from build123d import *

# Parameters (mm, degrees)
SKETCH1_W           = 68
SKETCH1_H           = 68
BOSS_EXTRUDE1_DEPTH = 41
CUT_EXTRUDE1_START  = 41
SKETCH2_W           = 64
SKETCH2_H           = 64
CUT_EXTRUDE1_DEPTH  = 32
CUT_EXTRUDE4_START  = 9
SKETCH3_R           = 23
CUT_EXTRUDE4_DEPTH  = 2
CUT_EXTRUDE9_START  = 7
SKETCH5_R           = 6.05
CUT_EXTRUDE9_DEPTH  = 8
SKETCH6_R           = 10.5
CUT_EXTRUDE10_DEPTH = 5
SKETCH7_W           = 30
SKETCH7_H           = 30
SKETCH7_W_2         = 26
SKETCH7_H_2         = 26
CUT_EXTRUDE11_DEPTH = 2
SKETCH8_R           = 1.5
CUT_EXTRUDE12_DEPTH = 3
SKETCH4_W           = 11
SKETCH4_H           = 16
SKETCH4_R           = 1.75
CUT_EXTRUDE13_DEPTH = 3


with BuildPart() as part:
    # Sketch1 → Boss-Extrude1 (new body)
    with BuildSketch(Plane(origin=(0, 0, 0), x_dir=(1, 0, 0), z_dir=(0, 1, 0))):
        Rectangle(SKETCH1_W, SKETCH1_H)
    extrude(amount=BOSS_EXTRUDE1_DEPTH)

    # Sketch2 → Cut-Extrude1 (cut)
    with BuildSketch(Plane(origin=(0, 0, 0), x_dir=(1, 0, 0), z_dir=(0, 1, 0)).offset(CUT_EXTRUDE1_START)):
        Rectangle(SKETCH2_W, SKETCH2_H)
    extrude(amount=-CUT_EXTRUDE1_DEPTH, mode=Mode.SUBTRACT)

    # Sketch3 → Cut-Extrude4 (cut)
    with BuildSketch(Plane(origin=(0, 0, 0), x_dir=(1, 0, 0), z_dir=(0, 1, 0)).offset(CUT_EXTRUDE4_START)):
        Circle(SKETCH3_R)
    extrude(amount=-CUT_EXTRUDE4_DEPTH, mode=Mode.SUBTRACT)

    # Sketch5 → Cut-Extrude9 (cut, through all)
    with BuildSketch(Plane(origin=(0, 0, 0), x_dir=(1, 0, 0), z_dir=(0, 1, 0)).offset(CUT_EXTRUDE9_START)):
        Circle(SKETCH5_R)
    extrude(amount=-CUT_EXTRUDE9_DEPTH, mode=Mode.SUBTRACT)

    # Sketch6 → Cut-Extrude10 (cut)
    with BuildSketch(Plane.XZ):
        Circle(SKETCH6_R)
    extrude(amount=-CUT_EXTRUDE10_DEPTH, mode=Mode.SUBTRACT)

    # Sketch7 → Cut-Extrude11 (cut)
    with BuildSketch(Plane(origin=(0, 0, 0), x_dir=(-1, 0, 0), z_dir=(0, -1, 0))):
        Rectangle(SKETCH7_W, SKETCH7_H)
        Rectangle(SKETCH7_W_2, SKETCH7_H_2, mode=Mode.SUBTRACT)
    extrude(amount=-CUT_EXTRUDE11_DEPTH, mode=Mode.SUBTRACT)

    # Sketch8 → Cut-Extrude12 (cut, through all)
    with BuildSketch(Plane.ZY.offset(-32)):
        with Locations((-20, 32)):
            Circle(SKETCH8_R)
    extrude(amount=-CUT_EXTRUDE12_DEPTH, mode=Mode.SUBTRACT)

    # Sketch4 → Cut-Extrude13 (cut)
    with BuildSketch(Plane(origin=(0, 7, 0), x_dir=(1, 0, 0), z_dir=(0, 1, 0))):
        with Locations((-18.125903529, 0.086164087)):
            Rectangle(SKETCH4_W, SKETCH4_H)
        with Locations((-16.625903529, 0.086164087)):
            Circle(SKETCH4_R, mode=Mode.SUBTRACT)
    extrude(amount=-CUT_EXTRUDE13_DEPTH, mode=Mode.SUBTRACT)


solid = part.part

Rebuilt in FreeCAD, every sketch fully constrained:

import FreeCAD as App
import Part
import Sketcher

doc = App.newDocument("Part")
params = doc.addObject("Spreadsheet::Sheet", "Params")
for row, (alias, value) in enumerate([
    ("sketch1_width", "68 mm"),
    ("pad1_length", "41 mm"),
    ("sketch2_width", "64 mm"),
    ("pocket1_length", "32 mm"),
    ("sketch3_diameter", "46 mm"),
    ("pocket2_length", "2 mm"),
    ("sketch4_diameter", "12.1 mm"),
    ("sketch5_diameter", "21 mm"),
    ("pocket4_length", "5 mm"),
    ("sketch6_width", "30 mm"),
    ("sketch6_width2", "26 mm"),
    ("pocket5_length", "2 mm"),
    ("sketch7_diameter", "3 mm"),
    ("sketch8_diameter", "3.5 mm"),
    ("sketch8_width", "11 mm"),
    ("sketch8_height", "16 mm"),
    ("pocket7_length", "3 mm"),
], start=1):
    params.set(f"A{row}", alias)
    params.set(f"B{row}", "=" + value)
    params.setAlias(f"B{row}", alias)

body = doc.addObject("PartDesign::Body", "Body")

sketch1 = doc.addObject("Sketcher::SketchObject", "Sketch")
body.addObject(sketch1)
sketch1.AttachmentSupport = (doc.XZ_Plane, [""])
sketch1.MapMode = "FlatFace"
sketch1.addGeometry(Part.LineSegment(App.Vector(-34, -34, 0), App.Vector(-34, 34, 0)), False)
sketch1.addGeometry(Part.LineSegment(App.Vector(-34, 34, 0), App.Vector(34, 34, 0)), False)
sketch1.addGeometry(Part.LineSegment(App.Vector(34, 34, 0), App.Vector(34, -34, 0)), False)
sketch1.addGeometry(Part.LineSegment(App.Vector(34, -34, 0), App.Vector(-34, -34, 0)), False)
sketch1.addConstraint(Sketcher.Constraint("Coincident", 0, 2, 1, 1))
sketch1.addConstraint(Sketcher.Constraint("Coincident", 1, 2, 2, 1))
sketch1.addConstraint(Sketcher.Constraint("Coincident", 2, 2, 3, 1))
sketch1.addConstraint(Sketcher.Constraint("Coincident", 3, 2, 0, 1))
sketch1.addConstraint(Sketcher.Constraint("Vertical", 0))
sketch1.addConstraint(Sketcher.Constraint("Horizontal", 1))
sketch1.addConstraint(Sketcher.Constraint("Vertical", 2))
sketch1.addConstraint(Sketcher.Constraint("Horizontal", 3))
sketch1.addConstraint(Sketcher.Constraint("Symmetric", 0, 2, 2, 2, -1, 1))
sketch1.addConstraint(Sketcher.Constraint("Equal", 3, 0))
sketch1.addConstraint(Sketcher.Constraint("DistanceX", 1, 1, 1, 2, 68.0))
sketch1.setExpression("Constraints[10]", "Params.sketch1_width")
pad1 = doc.addObject("PartDesign::Pad", "Pad")
body.addObject(pad1)
pad1.Profile = sketch1
pad1.setExpression("Length", "Params.pad1_length")
pad1.Reversed = True

sketch2 = doc.addObject("Sketcher::SketchObject", "Sketch001")
body.addObject(sketch2)
sketch2.AttachmentSupport = (doc.XZ_Plane, [""])
sketch2.MapMode = "FlatFace"
sketch2.AttachmentOffset = App.Placement(App.Vector(0, 0, -41), App.Rotation())
sketch2.addGeometry(Part.LineSegment(App.Vector(-32, -32, 0), App.Vector(-32, 32, 0)), False)
sketch2.addGeometry(Part.LineSegment(App.Vector(-32, 32, 0), App.Vector(32, 32, 0)), False)
sketch2.addGeometry(Part.LineSegment(App.Vector(32, 32, 0), App.Vector(32, -32, 0)), False)
sketch2.addGeometry(Part.LineSegment(App.Vector(32, -32, 0), App.Vector(-32, -32, 0)), False)
sketch2.addConstraint(Sketcher.Constraint("Coincident", 0, 2, 1, 1))
sketch2.addConstraint(Sketcher.Constraint("Coincident", 1, 2, 2, 1))
sketch2.addConstraint(Sketcher.Constraint("Coincident", 2, 2, 3, 1))
sketch2.addConstraint(Sketcher.Constraint("Coincident", 3, 2, 0, 1))
sketch2.addConstraint(Sketcher.Constraint("Vertical", 0))
sketch2.addConstraint(Sketcher.Constraint("Horizontal", 1))
sketch2.addConstraint(Sketcher.Constraint("Vertical", 2))
sketch2.addConstraint(Sketcher.Constraint("Horizontal", 3))
sketch2.addConstraint(Sketcher.Constraint("Symmetric", 0, 2, 2, 2, -1, 1))
sketch2.addConstraint(Sketcher.Constraint("Equal", 3, 0))
sketch2.addConstraint(Sketcher.Constraint("DistanceX", 1, 1, 1, 2, 64.0))
sketch2.setExpression("Constraints[10]", "Params.sketch2_width")
pocket1 = doc.addObject("PartDesign::Pocket", "Pocket")
body.addObject(pocket1)
pocket1.Profile = sketch2
pocket1.setExpression("Length", "Params.pocket1_length")
pocket1.Reversed = True

sketch3 = doc.addObject("Sketcher::SketchObject", "Sketch002")
body.addObject(sketch3)
sketch3.AttachmentSupport = (doc.XZ_Plane, [""])
sketch3.MapMode = "FlatFace"
sketch3.AttachmentOffset = App.Placement(App.Vector(0, 0, -9), App.Rotation())
sketch3.addGeometry(Part.Circle(App.Vector(0, 0, 0), App.Vector(0, 0, 1), 23), False)
sketch3.addConstraint(Sketcher.Constraint("Coincident", 0, 3, -1, 1))
sketch3.addConstraint(Sketcher.Constraint("Diameter", 0, 46.0))
sketch3.setExpression("Constraints[1]", "Params.sketch3_diameter")
pocket2 = doc.addObject("PartDesign::Pocket", "Pocket001")
body.addObject(pocket2)
pocket2.Profile = sketch3
pocket2.setExpression("Length", "Params.pocket2_length")
pocket2.Reversed = True

sketch4 = doc.addObject("Sketcher::SketchObject", "Sketch003")
body.addObject(sketch4)
sketch4.AttachmentSupport = (doc.XZ_Plane, [""])
sketch4.MapMode = "FlatFace"
sketch4.AttachmentOffset = App.Placement(App.Vector(0, 0, -7), App.Rotation())
sketch4.addGeometry(Part.Circle(App.Vector(0, 0, 0), App.Vector(0, 0, 1), 6), False)
sketch4.addConstraint(Sketcher.Constraint("Coincident", 0, 3, -1, 1))
sketch4.addConstraint(Sketcher.Constraint("Diameter", 0, 12.1))
sketch4.setExpression("Constraints[1]", "Params.sketch4_diameter")
pocket3 = doc.addObject("PartDesign::Pocket", "Pocket002")
body.addObject(pocket3)
pocket3.Profile = sketch4
pocket3.Type = "ThroughAll"
pocket3.Reversed = True

sketch5 = doc.addObject("Sketcher::SketchObject", "Sketch004")
body.addObject(sketch5)
sketch5.AttachmentSupport = (doc.XZ_Plane, [""])
sketch5.MapMode = "FlatFace"
sketch5.addGeometry(Part.Circle(App.Vector(0, 0, 0), App.Vector(0, 0, 1), 10), False)
sketch5.addConstraint(Sketcher.Constraint("Coincident", 0, 3, -1, 1))
sketch5.addConstraint(Sketcher.Constraint("Diameter", 0, 21.0))
sketch5.setExpression("Constraints[1]", "Params.sketch5_diameter")
pocket4 = doc.addObject("PartDesign::Pocket", "Pocket003")
body.addObject(pocket4)
pocket4.Profile = sketch5
pocket4.setExpression("Length", "Params.pocket4_length")

sketch6 = doc.addObject("Sketcher::SketchObject", "Sketch005")
body.addObject(sketch6)
sketch6.AttachmentSupport = (doc.XZ_Plane, [""])
sketch6.MapMode = "FlatFace"
sketch6.addGeometry(Part.LineSegment(App.Vector(15, -15, 0), App.Vector(15, 15, 0)), False)
sketch6.addGeometry(Part.LineSegment(App.Vector(15, 15, 0), App.Vector(-15, 15, 0)), False)
sketch6.addGeometry(Part.LineSegment(App.Vector(-15, 15, 0), App.Vector(-15, -15, 0)), False)
sketch6.addGeometry(Part.LineSegment(App.Vector(-15, -15, 0), App.Vector(15, -15, 0)), False)
sketch6.addGeometry(Part.LineSegment(App.Vector(-13, 13, 0), App.Vector(13, 13, 0)), False)
sketch6.addGeometry(Part.LineSegment(App.Vector(13, 13, 0), App.Vector(13, -13, 0)), False)
sketch6.addGeometry(Part.LineSegment(App.Vector(13, -13, 0), App.Vector(-13, -13, 0)), False)
sketch6.addGeometry(Part.LineSegment(App.Vector(-13, -13, 0), App.Vector(-13, 13, 0)), False)
sketch6.addConstraint(Sketcher.Constraint("Coincident", 0, 2, 1, 1))
sketch6.addConstraint(Sketcher.Constraint("Coincident", 1, 2, 2, 1))
sketch6.addConstraint(Sketcher.Constraint("Coincident", 2, 2, 3, 1))
sketch6.addConstraint(Sketcher.Constraint("Coincident", 3, 2, 0, 1))
sketch6.addConstraint(Sketcher.Constraint("Coincident", 4, 2, 5, 1))
sketch6.addConstraint(Sketcher.Constraint("Coincident", 5, 2, 6, 1))
sketch6.addConstraint(Sketcher.Constraint("Coincident", 6, 2, 7, 1))
sketch6.addConstraint(Sketcher.Constraint("Coincident", 7, 2, 4, 1))
sketch6.addConstraint(Sketcher.Constraint("Vertical", 0))
sketch6.addConstraint(Sketcher.Constraint("Horizontal", 1))
sketch6.addConstraint(Sketcher.Constraint("Vertical", 2))
sketch6.addConstraint(Sketcher.Constraint("Horizontal", 3))
sketch6.addConstraint(Sketcher.Constraint("Horizontal", 4))
sketch6.addConstraint(Sketcher.Constraint("Vertical", 5))
sketch6.addConstraint(Sketcher.Constraint("Horizontal", 6))
sketch6.addConstraint(Sketcher.Constraint("Vertical", 7))
sketch6.addConstraint(Sketcher.Constraint("Symmetric", 0, 2, 2, 2, -1, 1))
sketch6.addConstraint(Sketcher.Constraint("Symmetric", 4, 2, 6, 2, -1, 1))
sketch6.addConstraint(Sketcher.Constraint("Equal", 3, 0))
sketch6.addConstraint(Sketcher.Constraint("Equal", 6, 5))
sketch6.addConstraint(Sketcher.Constraint("DistanceX", 1, 2, 1, 1, 30.0))
sketch6.addConstraint(Sketcher.Constraint("DistanceX", 4, 1, 4, 2, 26.0))
sketch6.setExpression("Constraints[20]", "Params.sketch6_width")
sketch6.setExpression("Constraints[21]", "Params.sketch6_width2")
pocket5 = doc.addObject("PartDesign::Pocket", "Pocket004")
body.addObject(pocket5)
pocket5.Profile = sketch6
pocket5.setExpression("Length", "Params.pocket5_length")

sketch7 = doc.addObject("Sketcher::SketchObject", "Sketch006")
body.addObject(sketch7)
sketch7.AttachmentSupport = (doc.YZ_Plane, [""])
sketch7.MapMode = "FlatFace"
sketch7.AttachmentOffset = App.Placement(App.Vector(0, 0, 32), App.Rotation())
sketch7.addGeometry(Part.Circle(App.Vector(32, -20, 0), App.Vector(0, 0, 1), 1.5), False)
sketch7.addConstraint(Sketcher.Constraint("Diameter", 0, 3.0))
sketch7.addConstraint(Sketcher.Constraint("DistanceX", -1, 1, 0, 3, 32.0))
sketch7.addConstraint(Sketcher.Constraint("DistanceY", 0, 3, -1, 1, 20.0))
sketch7.setExpression("Constraints[0]", "Params.sketch7_diameter")
pocket6 = doc.addObject("PartDesign::Pocket", "Pocket005")
body.addObject(pocket6)
pocket6.Profile = sketch7
pocket6.Type = "ThroughAll"
pocket6.Reversed = True

sketch8 = doc.addObject("Sketcher::SketchObject", "Sketch007")
body.addObject(sketch8)
sketch8.AttachmentSupport = (doc.XZ_Plane, [""])
sketch8.MapMode = "FlatFace"
sketch8.AttachmentOffset = App.Placement(App.Vector(0, 0, -7), App.Rotation())
sketch8.addGeometry(Part.LineSegment(App.Vector(-23.6, -8.1, 0), App.Vector(-23.6, 7.9, 0)), False)
sketch8.addGeometry(Part.LineSegment(App.Vector(-23.6, 7.9, 0), App.Vector(-12.6, 7.9, 0)), False)
sketch8.addGeometry(Part.LineSegment(App.Vector(-12.6, 7.9, 0), App.Vector(-12.6, -8.1, 0)), False)
sketch8.addGeometry(Part.LineSegment(App.Vector(-12.6, -8.1, 0), App.Vector(-23.6, -8.1, 0)), False)
sketch8.addGeometry(Part.Circle(App.Vector(-16.6, -0.1, 0), App.Vector(0, 0, 1), 1.8), False)
sketch8.addConstraint(Sketcher.Constraint("Coincident", 0, 2, 1, 1))
sketch8.addConstraint(Sketcher.Constraint("Coincident", 1, 2, 2, 1))
sketch8.addConstraint(Sketcher.Constraint("Coincident", 2, 2, 3, 1))
sketch8.addConstraint(Sketcher.Constraint("Coincident", 3, 2, 0, 1))
sketch8.addConstraint(Sketcher.Constraint("Vertical", 0))
sketch8.addConstraint(Sketcher.Constraint("Horizontal", 1))
sketch8.addConstraint(Sketcher.Constraint("Vertical", 2))
sketch8.addConstraint(Sketcher.Constraint("Horizontal", 3))
sketch8.addConstraint(Sketcher.Constraint("Diameter", 4, 3.5))
sketch8.addConstraint(Sketcher.Constraint("DistanceX", 1, 1, 1, 2, 11.0))
sketch8.addConstraint(Sketcher.Constraint("DistanceY", 0, 1, 0, 2, 16.0))
sketch8.addConstraint(Sketcher.Constraint("DistanceX", 0, 2, 4, 3, 7.0))
sketch8.addConstraint(Sketcher.Constraint("DistanceY", 4, 3, 0, 2, 8.0))
sketch8.addConstraint(Sketcher.Constraint("DistanceX", 4, 3, -1, 1, 16.625904))
sketch8.addConstraint(Sketcher.Constraint("DistanceY", 4, 3, -1, 1, 0.086164))
sketch8.setExpression("Constraints[8]", "Params.sketch8_diameter")
sketch8.setExpression("Constraints[9]", "Params.sketch8_width")
sketch8.setExpression("Constraints[10]", "Params.sketch8_height")
pocket7 = doc.addObject("PartDesign::Pocket", "Pocket006")
body.addObject(pocket7)
pocket7.Profile = sketch8
pocket7.setExpression("Length", "Params.pocket7_length")
pocket7.Reversed = True

doc.recompute()
